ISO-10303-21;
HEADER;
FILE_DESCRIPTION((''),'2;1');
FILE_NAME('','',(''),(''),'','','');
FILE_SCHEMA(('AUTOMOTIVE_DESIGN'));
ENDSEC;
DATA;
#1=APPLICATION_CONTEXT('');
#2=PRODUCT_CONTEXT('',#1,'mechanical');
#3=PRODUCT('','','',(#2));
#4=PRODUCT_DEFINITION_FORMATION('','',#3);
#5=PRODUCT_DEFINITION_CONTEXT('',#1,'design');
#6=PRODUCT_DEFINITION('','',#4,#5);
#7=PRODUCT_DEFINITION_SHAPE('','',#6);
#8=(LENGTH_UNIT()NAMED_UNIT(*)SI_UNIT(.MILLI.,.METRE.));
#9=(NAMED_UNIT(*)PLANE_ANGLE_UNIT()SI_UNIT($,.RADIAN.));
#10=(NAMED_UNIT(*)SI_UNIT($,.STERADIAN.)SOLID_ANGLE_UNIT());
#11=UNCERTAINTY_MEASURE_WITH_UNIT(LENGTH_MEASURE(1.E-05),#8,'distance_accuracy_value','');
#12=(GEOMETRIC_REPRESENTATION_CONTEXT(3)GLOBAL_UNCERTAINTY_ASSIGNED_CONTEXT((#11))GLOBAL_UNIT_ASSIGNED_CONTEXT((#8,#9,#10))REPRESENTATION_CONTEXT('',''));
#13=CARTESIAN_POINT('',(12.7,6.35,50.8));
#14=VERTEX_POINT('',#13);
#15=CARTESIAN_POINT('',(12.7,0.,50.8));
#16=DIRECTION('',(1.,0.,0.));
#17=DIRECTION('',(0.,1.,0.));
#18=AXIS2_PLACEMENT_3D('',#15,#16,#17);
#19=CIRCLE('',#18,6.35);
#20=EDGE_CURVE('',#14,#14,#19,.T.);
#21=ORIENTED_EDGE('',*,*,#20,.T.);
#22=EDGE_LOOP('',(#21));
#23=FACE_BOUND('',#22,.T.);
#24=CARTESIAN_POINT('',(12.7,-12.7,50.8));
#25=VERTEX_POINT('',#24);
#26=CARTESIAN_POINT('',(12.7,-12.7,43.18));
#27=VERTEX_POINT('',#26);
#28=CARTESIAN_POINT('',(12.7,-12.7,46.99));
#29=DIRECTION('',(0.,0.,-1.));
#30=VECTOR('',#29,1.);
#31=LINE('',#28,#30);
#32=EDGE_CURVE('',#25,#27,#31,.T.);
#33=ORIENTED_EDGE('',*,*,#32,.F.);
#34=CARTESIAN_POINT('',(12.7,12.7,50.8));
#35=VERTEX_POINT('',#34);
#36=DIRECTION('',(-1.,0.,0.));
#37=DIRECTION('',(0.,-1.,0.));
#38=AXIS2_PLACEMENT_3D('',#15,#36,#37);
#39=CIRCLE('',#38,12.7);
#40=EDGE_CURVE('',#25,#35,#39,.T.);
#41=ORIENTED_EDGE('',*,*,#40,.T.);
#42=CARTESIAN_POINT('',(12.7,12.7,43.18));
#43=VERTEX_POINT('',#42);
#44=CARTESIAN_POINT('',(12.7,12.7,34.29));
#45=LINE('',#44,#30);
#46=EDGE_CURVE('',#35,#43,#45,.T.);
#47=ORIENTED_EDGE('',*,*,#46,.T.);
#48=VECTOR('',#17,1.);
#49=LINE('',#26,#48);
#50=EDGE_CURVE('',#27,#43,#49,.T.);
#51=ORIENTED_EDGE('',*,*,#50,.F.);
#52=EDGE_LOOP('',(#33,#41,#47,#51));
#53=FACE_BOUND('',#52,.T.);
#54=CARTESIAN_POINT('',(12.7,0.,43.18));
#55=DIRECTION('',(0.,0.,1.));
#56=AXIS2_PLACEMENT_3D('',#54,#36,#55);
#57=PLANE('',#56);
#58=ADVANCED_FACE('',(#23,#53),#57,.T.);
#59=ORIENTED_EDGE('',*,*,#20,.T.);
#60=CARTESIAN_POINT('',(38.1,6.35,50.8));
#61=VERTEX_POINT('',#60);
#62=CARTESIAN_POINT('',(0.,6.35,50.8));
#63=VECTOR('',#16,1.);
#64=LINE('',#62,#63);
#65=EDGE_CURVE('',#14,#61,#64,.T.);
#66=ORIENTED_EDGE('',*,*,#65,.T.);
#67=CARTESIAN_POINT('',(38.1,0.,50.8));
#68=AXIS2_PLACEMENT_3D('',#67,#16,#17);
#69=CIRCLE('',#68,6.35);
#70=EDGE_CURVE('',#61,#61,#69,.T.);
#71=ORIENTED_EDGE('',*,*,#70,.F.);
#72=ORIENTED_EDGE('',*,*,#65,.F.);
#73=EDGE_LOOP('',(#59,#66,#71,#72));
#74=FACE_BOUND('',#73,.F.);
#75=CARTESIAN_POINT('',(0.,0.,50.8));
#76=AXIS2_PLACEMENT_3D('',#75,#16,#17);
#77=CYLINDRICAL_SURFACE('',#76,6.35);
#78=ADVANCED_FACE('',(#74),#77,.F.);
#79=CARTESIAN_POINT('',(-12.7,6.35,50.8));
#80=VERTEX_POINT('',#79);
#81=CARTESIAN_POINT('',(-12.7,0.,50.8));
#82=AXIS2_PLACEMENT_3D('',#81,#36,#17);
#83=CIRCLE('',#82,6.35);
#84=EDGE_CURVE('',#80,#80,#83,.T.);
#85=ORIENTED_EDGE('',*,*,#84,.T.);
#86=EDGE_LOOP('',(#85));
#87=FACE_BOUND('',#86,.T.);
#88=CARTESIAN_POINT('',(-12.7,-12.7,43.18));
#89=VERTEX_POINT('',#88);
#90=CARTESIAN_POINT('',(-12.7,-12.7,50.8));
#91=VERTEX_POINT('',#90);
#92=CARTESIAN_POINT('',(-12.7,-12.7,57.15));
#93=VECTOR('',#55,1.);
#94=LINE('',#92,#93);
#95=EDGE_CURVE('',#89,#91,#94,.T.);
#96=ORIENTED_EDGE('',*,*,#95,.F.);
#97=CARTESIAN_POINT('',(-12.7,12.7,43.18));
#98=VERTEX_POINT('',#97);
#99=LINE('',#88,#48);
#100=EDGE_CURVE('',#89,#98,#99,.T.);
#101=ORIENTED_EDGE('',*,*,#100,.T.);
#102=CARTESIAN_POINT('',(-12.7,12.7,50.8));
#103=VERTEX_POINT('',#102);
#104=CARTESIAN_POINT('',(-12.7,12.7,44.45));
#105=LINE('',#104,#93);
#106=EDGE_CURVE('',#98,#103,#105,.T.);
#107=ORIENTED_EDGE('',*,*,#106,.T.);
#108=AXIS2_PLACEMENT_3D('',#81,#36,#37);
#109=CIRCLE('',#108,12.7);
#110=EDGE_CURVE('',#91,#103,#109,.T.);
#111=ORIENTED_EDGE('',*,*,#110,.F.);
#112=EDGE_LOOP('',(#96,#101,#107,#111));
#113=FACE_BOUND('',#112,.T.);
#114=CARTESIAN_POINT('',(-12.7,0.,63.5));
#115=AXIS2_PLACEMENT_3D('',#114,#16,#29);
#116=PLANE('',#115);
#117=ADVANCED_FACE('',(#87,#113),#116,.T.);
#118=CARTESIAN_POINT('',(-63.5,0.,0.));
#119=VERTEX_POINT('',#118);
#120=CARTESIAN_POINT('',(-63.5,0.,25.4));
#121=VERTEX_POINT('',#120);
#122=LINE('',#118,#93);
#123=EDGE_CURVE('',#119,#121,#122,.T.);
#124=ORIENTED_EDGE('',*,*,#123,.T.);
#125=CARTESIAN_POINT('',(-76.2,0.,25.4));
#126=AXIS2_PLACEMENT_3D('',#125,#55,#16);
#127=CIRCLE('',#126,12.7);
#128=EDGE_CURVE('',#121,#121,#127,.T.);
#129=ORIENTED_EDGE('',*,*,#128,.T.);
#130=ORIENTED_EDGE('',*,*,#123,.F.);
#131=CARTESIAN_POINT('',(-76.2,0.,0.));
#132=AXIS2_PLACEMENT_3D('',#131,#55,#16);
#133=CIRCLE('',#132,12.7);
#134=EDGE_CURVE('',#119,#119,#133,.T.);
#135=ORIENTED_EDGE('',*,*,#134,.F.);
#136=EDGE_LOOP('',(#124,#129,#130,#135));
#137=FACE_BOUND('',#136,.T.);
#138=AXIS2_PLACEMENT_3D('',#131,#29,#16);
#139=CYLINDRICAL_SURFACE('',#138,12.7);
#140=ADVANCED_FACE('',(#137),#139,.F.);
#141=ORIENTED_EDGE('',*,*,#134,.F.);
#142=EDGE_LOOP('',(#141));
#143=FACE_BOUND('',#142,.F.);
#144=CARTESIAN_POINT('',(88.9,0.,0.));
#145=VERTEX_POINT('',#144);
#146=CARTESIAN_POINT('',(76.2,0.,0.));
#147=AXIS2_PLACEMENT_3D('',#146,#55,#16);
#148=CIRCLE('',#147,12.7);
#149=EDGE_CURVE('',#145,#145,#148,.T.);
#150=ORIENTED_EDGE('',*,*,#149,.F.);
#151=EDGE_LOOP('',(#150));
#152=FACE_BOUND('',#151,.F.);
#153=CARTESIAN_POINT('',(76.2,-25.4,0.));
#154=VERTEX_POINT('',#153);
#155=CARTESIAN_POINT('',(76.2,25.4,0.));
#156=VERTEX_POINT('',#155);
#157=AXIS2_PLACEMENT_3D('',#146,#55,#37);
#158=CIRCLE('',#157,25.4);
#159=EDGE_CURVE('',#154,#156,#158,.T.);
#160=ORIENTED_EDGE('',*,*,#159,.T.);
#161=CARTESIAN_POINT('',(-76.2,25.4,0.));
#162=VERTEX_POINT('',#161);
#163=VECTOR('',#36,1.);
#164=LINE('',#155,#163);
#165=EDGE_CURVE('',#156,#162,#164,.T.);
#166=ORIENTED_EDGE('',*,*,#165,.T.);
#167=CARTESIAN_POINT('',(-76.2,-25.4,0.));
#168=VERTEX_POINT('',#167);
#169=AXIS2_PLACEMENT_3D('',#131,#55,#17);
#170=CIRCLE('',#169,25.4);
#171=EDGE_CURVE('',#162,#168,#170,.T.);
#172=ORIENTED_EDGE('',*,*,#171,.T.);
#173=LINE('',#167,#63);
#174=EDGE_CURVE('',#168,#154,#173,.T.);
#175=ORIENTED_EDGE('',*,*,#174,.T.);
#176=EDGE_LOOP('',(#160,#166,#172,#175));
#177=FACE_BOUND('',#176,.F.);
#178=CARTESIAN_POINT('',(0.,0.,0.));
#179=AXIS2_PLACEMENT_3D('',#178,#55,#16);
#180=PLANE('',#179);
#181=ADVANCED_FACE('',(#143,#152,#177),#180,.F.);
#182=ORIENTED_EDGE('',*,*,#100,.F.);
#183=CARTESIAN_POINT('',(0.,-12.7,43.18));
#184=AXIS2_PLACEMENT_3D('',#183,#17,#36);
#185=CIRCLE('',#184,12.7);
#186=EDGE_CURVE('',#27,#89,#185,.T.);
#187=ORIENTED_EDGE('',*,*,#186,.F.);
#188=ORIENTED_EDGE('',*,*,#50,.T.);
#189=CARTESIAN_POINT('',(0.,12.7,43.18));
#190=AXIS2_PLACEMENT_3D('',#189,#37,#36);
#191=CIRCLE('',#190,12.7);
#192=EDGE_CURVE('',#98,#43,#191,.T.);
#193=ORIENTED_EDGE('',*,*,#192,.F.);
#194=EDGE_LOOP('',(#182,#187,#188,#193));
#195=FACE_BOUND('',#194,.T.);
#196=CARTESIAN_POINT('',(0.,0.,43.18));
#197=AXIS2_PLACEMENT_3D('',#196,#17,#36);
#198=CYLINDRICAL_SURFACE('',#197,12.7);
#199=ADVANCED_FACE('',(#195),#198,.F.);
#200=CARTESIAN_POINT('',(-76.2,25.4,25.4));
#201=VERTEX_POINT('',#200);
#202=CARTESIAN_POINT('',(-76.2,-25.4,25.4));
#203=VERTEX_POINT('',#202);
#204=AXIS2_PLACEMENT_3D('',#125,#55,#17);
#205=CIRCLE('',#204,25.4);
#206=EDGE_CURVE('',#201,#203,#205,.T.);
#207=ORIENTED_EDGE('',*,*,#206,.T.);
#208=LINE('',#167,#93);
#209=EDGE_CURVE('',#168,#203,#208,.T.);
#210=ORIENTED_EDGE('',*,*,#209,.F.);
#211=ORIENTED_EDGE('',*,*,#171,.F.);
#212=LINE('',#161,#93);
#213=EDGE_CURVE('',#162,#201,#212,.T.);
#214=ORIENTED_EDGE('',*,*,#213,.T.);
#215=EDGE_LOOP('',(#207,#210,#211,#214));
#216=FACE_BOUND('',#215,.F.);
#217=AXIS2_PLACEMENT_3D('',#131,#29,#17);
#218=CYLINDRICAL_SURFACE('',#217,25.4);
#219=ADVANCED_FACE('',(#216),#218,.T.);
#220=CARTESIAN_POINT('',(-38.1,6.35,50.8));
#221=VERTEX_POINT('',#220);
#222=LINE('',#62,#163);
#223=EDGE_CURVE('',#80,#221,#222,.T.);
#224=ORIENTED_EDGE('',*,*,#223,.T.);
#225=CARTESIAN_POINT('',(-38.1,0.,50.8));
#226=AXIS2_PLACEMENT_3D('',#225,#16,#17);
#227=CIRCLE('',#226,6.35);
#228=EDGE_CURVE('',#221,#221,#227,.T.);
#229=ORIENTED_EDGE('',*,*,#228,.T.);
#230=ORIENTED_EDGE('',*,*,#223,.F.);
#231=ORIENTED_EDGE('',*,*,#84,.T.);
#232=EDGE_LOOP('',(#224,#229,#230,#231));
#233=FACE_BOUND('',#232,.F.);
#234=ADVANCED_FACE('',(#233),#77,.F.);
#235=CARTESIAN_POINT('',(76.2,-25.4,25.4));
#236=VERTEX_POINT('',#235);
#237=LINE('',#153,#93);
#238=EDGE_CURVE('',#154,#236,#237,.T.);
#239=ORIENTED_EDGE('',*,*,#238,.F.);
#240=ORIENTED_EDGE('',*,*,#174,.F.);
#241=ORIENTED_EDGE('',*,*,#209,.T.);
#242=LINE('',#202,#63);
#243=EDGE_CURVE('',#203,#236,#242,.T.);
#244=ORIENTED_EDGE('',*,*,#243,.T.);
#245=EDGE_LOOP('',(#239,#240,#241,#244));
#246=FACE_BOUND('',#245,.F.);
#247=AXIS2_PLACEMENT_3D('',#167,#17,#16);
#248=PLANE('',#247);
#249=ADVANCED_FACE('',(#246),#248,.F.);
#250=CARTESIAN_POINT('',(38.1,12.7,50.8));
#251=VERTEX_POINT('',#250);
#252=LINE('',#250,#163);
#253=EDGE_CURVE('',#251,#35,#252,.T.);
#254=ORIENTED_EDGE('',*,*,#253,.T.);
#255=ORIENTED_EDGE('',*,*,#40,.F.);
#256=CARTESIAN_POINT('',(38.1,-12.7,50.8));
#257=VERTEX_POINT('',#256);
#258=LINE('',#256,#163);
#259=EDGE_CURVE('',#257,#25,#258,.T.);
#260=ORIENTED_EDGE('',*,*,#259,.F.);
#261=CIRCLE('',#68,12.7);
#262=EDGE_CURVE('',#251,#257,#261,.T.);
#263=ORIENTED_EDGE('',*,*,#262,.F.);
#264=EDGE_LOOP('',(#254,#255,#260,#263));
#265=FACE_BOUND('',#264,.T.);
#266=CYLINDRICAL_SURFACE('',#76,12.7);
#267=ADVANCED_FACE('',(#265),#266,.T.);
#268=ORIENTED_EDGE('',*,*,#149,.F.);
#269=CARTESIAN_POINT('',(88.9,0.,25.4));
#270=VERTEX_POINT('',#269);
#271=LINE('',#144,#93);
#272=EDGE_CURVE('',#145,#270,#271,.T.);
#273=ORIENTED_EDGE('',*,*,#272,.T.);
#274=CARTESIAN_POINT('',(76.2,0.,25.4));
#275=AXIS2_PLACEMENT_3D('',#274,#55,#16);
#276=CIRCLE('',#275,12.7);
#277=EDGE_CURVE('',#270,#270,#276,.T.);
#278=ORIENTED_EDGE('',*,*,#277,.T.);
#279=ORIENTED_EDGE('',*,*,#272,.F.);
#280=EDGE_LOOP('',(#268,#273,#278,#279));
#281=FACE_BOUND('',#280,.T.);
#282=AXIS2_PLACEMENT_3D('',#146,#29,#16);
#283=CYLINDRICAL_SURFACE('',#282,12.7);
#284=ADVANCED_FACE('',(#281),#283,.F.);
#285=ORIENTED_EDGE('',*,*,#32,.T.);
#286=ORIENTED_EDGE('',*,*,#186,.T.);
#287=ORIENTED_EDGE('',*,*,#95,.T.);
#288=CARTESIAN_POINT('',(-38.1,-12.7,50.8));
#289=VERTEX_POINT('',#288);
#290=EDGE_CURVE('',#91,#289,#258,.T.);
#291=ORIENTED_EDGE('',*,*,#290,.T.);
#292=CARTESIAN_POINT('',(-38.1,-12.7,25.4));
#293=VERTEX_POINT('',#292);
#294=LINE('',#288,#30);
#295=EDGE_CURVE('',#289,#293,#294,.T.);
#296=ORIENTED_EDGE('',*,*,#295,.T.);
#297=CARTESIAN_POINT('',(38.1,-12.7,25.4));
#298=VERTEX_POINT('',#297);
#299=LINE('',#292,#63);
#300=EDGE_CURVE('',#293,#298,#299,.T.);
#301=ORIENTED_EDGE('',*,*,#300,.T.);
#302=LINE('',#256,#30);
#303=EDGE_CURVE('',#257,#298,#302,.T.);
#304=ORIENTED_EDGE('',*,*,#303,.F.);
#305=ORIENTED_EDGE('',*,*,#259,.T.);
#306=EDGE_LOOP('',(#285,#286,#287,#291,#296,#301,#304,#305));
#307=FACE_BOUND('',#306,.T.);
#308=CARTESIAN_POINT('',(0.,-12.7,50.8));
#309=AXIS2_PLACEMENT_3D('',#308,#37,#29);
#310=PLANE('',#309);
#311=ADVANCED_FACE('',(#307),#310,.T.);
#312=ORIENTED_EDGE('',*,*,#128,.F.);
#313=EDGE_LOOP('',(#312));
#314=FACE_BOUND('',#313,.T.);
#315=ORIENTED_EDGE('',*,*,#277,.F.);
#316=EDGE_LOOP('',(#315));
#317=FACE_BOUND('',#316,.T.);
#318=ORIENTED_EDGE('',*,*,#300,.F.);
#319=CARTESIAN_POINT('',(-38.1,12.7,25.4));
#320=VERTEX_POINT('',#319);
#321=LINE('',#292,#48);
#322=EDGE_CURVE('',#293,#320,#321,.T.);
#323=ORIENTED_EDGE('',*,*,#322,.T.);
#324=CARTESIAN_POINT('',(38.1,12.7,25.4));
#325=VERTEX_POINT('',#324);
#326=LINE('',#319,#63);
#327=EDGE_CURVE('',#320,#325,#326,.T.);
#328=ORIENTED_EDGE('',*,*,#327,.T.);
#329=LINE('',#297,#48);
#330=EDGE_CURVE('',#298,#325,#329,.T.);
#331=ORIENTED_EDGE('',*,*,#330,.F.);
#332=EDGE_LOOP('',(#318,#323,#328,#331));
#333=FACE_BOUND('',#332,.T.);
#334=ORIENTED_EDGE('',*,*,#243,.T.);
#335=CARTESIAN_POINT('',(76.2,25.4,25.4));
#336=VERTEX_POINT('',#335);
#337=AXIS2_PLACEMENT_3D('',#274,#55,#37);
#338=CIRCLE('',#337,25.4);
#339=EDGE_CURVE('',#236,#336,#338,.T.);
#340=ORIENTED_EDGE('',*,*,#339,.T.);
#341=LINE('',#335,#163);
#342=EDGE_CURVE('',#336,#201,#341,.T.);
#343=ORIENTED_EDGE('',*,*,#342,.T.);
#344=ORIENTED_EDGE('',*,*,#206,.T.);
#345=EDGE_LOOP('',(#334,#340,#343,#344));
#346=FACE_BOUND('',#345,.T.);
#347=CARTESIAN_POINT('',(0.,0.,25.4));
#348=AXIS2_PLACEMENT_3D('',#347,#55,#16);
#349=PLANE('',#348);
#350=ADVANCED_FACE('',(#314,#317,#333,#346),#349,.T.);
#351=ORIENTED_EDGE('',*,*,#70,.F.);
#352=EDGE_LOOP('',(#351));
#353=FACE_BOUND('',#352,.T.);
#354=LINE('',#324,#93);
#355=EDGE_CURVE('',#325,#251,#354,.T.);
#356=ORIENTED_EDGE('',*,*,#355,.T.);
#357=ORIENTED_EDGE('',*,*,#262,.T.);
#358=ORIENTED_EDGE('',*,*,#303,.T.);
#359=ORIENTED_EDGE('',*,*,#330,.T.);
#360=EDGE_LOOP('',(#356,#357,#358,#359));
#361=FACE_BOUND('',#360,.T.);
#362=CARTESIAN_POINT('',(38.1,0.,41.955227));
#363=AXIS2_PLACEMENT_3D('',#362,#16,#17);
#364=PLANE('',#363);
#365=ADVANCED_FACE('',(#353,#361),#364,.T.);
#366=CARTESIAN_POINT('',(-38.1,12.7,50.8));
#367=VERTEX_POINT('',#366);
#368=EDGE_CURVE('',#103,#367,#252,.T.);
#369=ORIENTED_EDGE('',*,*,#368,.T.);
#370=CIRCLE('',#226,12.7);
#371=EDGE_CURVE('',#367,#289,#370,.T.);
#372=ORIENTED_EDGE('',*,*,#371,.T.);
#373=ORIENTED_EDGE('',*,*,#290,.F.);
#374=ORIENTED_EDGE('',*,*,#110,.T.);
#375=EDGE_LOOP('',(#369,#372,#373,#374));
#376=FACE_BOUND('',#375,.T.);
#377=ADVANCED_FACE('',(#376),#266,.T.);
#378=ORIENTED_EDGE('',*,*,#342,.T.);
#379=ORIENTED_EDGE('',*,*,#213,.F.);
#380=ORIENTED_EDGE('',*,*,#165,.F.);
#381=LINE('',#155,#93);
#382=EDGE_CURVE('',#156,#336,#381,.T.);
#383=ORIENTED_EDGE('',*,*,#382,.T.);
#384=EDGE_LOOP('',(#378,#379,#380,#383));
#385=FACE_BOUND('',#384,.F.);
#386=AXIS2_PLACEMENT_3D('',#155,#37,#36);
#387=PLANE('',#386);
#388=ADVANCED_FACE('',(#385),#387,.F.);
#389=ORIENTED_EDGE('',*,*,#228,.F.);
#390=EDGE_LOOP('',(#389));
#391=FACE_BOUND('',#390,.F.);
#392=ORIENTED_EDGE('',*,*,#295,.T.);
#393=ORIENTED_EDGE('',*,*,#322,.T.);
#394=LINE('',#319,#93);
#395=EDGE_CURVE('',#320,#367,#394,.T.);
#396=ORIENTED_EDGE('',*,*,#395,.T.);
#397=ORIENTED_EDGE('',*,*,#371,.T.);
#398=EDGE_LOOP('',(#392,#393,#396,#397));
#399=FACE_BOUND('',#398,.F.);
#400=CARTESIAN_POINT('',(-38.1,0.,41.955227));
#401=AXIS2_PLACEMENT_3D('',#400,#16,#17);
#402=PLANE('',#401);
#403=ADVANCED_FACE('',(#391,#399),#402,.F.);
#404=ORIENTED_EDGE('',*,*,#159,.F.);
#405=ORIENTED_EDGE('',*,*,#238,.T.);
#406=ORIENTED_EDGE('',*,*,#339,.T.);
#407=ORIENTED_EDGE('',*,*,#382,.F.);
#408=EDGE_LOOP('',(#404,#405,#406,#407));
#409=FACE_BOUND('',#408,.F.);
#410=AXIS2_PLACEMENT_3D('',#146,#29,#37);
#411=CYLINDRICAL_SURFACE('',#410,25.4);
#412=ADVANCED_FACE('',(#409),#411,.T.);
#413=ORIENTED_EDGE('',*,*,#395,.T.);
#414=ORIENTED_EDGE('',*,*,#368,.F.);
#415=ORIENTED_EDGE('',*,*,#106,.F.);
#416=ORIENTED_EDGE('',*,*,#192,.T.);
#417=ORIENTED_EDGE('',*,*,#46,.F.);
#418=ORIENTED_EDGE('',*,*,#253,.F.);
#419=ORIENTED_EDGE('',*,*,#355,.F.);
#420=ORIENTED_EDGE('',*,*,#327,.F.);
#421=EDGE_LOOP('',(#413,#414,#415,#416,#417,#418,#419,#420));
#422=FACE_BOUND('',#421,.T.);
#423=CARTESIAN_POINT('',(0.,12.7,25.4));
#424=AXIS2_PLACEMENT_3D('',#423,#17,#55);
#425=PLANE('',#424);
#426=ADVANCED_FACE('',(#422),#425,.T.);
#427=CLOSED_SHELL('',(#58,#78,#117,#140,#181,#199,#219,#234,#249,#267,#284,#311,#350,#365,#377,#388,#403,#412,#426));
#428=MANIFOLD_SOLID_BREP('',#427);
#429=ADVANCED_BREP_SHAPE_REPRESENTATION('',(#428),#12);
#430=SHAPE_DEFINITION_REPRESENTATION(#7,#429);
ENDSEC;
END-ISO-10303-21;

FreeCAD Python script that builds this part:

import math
import FreeCAD as App
import Part
import Sketcher

V = App.Vector
Q = App.Units.Quantity

doc = App.newDocument("Part")
body = doc.addObject("PartDesign::Body", "Body")

# Sketch on XY plane
sketch1 = doc.addObject("Sketcher::SketchObject", "Sketch")
body.addObject(sketch1)
sketch1.AttachmentSupport = (doc.XY_Plane, [""])
sketch1.MapMode = "FlatFace"
sketch1.addGeometry([
    Part.LineSegment(V(76, 25, 0), V(-76, 25, 0)),  # 0
    Part.ArcOfCircle(Part.Circle(V(-76, 0, 0), V(0, 0, 1), 25), math.radians(90), math.radians(270)),  # 1
    Part.LineSegment(V(-76, -25, 0), V(76, -25, 0)),  # 2
    Part.ArcOfCircle(Part.Circle(V(76, 0, 0), V(0, 0, 1), 25), math.radians(-90), math.radians(90)),  # 3
    Part.Circle(V(-76, 0, 0), V(0, 0, 1), 13),  # 4
    Part.Circle(V(76, 0, 0), V(0, 0, 1), 13),  # 5
], False)
sketch1.addConstraint([
    Sketcher.Constraint("Tangent", 0, 2, 1, 1),
    Sketcher.Constraint("Tangent", 1, 2, 2, 1),
    Sketcher.Constraint("Tangent", 2, 2, 3, 1),
    Sketcher.Constraint("Tangent", 3, 2, 0, 1),
    Sketcher.Constraint("Horizontal", 0),
    Sketcher.Constraint("Horizontal", 2),
    Sketcher.Constraint("Coincident", 4, 3, 1, 3),
    Sketcher.Constraint("Coincident", 5, 3, 3, 3),
    Sketcher.Constraint("Equal", 4, 5),
    Sketcher.Constraint("Symmetric", 1, 3, 3, 3, -1, 1),
    Sketcher.Constraint("Diameter", 4, Q("1 in")),
    Sketcher.Constraint("Radius", 1, Q("1 in")),
    Sketcher.Constraint("DistanceX", 0, 2, 0, 1, Q("6 in")),
])
pad1 = doc.addObject("PartDesign::Pad", "Pad")
body.addObject(pad1)
pad1.Profile = sketch1
pad1.Length = Q("1 in")

# Sketch on YZ plane
sketch2 = doc.addObject("Sketcher::SketchObject", "Sketch001")
body.addObject(sketch2)
sketch2.AttachmentSupport = (doc.YZ_Plane, [""])
sketch2.MapMode = "FlatFace"
sketch2.addGeometry([
    Part.LineSegment(V(-13, 51, 0), V(-13, 25, 0)),  # 0
    Part.LineSegment(V(-13, 25, 0), V(13, 25, 0)),  # 1
    Part.LineSegment(V(13, 25, 0), V(13, 51, 0)),  # 2
    Part.ArcOfCircle(Part.Circle(V(0, 51, 0), V(0, 0, 1), 13), math.radians(0), math.radians(180)),  # 3
    Part.Circle(V(0, 51, 0), V(0, 0, 1), 6),  # 4
], False)
sketch2.addConstraint([
    Sketcher.Constraint("Coincident", 0, 2, 1, 1),
    Sketcher.Constraint("Coincident", 1, 2, 2, 1),
    Sketcher.Constraint("Tangent", 2, 2, 3, 1),
    Sketcher.Constraint("Tangent", 3, 2, 0, 1),
    Sketcher.Constraint("Vertical", 0),
    Sketcher.Constraint("Horizontal", 1),
    Sketcher.Constraint("Vertical", 2),
    Sketcher.Constraint("Coincident", 4, 3, 3, 3),
    Sketcher.Constraint("PointOnObject", 3, 3, -2),
    Sketcher.Constraint("Equal", 1, 0),
    Sketcher.Constraint("Diameter", 4, Q("0.5 in")),
    Sketcher.Constraint("Radius", 3, Q("0.5 in")),
    Sketcher.Constraint("DistanceY", -1, 1, 3, 3, Q("2 in")),
])
pad2 = doc.addObject("PartDesign::Pad", "Pad001")
body.addObject(pad2)
pad2.Profile = sketch2
pad2.Type = "TwoLengths"
pad2.Length = Q("1.5 in")
pad2.Length2 = Q("1.5 in")

# Sketch on XZ plane
sketch3 = doc.addObject("Sketcher::SketchObject", "Sketch002")
body.addObject(sketch3)
sketch3.AttachmentSupport = (doc.XZ_Plane, [""])
sketch3.MapMode = "FlatFace"
sketch3.addGeometry([
    Part.LineSegment(V(13, 43, 0), V(13, 64, 0)),
    Part.LineSegment(V(13, 64, 0), V(-13, 64, 0)),
    Part.LineSegment(V(-13, 64, 0), V(-13, 43, 0)),
    Part.ArcOfCircle(Part.Circle(V(0, 43, 0), V(0, 0, 1), 13), math.radians(180), math.radians(360)),
], False)
sketch3.addConstraint([
    Sketcher.Constraint("Coincident", 0, 2, 1, 1),
    Sketcher.Constraint("Coincident", 1, 2, 2, 1),
    Sketcher.Constraint("Tangent", 2, 2, 3, 1),
    Sketcher.Constraint("Tangent", 3, 2, 0, 1),
    Sketcher.Constraint("Vertical", 0),
    Sketcher.Constraint("Horizontal", 1),
    Sketcher.Constraint("Vertical", 2),
    Sketcher.Constraint("PointOnObject", 3, 3, -2),
    Sketcher.Constraint("Radius", 3, Q("0.5 in")),
    Sketcher.Constraint("DistanceY", 0, 1, 0, 2, Q("0.8 in")),
    Sketcher.Constraint("DistanceY", -1, 1, 3, 3, Q("1.7 in")),
])
pocket1 = doc.addObject("PartDesign::Pocket", "Pocket")
body.addObject(pocket1)
pocket1.Profile = sketch3
pocket1.Type = "ThroughAll"
pocket1.Midplane = True

doc.recompute()
